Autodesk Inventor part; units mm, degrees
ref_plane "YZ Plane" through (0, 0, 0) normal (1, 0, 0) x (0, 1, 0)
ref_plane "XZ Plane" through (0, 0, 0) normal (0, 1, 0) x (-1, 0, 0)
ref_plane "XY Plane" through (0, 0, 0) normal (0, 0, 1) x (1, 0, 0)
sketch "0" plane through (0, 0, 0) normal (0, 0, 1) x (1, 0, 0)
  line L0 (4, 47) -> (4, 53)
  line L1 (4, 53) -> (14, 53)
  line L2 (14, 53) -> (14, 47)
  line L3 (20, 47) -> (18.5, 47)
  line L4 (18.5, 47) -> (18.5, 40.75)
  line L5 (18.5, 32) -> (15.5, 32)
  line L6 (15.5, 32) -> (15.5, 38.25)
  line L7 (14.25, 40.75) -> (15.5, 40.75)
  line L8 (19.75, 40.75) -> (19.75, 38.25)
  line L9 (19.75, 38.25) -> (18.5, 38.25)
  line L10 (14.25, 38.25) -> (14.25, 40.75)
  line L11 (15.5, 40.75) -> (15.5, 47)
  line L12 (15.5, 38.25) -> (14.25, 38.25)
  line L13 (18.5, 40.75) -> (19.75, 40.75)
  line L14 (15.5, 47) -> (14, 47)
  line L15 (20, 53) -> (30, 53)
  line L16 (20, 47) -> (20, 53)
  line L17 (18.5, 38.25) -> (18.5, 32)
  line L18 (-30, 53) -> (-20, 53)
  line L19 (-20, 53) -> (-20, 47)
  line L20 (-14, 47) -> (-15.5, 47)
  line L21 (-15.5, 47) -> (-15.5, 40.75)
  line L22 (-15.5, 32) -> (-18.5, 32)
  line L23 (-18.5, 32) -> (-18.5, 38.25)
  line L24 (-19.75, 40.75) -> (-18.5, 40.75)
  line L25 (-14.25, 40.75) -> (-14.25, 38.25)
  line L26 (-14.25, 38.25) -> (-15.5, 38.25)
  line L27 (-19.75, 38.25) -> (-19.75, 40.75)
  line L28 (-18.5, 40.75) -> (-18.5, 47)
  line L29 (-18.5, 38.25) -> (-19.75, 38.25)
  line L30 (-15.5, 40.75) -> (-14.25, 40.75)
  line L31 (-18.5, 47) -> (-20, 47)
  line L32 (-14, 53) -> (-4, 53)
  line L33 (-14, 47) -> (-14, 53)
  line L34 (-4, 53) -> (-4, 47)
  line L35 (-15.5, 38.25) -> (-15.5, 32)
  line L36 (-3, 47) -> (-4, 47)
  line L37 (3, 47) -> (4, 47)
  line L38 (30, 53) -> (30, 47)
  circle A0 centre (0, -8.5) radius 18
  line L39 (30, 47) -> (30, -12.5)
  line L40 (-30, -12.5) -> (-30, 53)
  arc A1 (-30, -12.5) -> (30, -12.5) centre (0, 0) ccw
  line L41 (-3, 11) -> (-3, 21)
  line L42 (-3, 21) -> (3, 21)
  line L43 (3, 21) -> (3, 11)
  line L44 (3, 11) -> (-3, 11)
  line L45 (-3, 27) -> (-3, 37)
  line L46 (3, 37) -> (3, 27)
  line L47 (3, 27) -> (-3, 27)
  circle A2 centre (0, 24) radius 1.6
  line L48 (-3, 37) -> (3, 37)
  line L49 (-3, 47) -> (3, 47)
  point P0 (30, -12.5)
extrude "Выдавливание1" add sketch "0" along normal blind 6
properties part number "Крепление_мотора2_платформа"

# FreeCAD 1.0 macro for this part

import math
import FreeCAD as App
import Part
import Sketcher
Q = App.Units.Quantity

doc = App.newDocument("Part")
body = doc.addObject("PartDesign::Body", "Body")

# Sketch on XY plane
sketch1 = body.newObject("Sketcher::SketchObject", "Sketch")
sketch1.AttachmentSupport = (doc.getObject("XY_Plane"), [""])
sketch1.MapMode = "FlatFace"
sketch1.addGeometry([
    Part.LineSegment(App.Vector(4, 53, 0), App.Vector(4, 47, 0)),  # 0
    Part.LineSegment(App.Vector(4, 47, 0), App.Vector(-4, 47, 0)),  # 1
    Part.LineSegment(App.Vector(-4, 47, 0), App.Vector(-4, 53, 0)),  # 2
    Part.LineSegment(App.Vector(-4, 53, 0), App.Vector(-14, 53, 0)),  # 3
    Part.LineSegment(App.Vector(-14, 53, 0), App.Vector(-14, 47, 0)),  # 4
    Part.LineSegment(App.Vector(-14, 47, 0), App.Vector(-15.5, 47, 0)),  # 5
    Part.LineSegment(App.Vector(-15.5, 47, 0), App.Vector(-15.5, 40.8, 0)),  # 6
    Part.LineSegment(App.Vector(-15.5, 40.8, 0), App.Vector(-14.2, 40.8, 0)),  # 7
    Part.LineSegment(App.Vector(-14.2, 40.8, 0), App.Vector(-14.2, 38.2, 0)),  # 8
    Part.LineSegment(App.Vector(-14.2, 38.2, 0), App.Vector(-15.5, 38.2, 0)),  # 9
    Part.LineSegment(App.Vector(-15.5, 38.2, 0), App.Vector(-15.5, 32, 0)),  # 10
    Part.LineSegment(App.Vector(-15.5, 32, 0), App.Vector(-18.5, 32, 0)),  # 11
    Part.LineSegment(App.Vector(-18.5, 32, 0), App.Vector(-18.5, 38.2, 0)),  # 12
    Part.LineSegment(App.Vector(-18.5, 38.2, 0), App.Vector(-19.8, 38.2, 0)),  # 13
    Part.LineSegment(App.Vector(-19.8, 38.2, 0), App.Vector(-19.8, 40.8, 0)),  # 14
    Part.LineSegment(App.Vector(-19.8, 40.8, 0), App.Vector(-18.5, 40.8, 0)),  # 15
    Part.LineSegment(App.Vector(-18.5, 40.8, 0), App.Vector(-18.5, 47, 0)),  # 16
    Part.LineSegment(App.Vector(-18.5, 47, 0), App.Vector(-20, 47, 0)),  # 17
    Part.LineSegment(App.Vector(-20, 47, 0), App.Vector(-20, 53, 0)),  # 18
    Part.LineSegment(App.Vector(-20, 53, 0), App.Vector(-30, 53, 0)),  # 19
    Part.LineSegment(App.Vector(-30, 53, 0), App.Vector(-30, -12.5, 0)),  # 20
    Part.ArcOfCircle(Part.Circle(App.Vector(0, 0, 0), App.Vector(0, 0, 1), 32.5), math.radians(-157), math.radians(-23)),  # 21
    Part.LineSegment(App.Vector(30, -12.5, 0), App.Vector(30, 53, 0)),  # 22
    Part.LineSegment(App.Vector(30, 53, 0), App.Vector(20, 53, 0)),  # 23
    Part.LineSegment(App.Vector(20, 53, 0), App.Vector(20, 47, 0)),  # 24
    Part.LineSegment(App.Vector(20, 47, 0), App.Vector(18.5, 47, 0)),  # 25
    Part.LineSegment(App.Vector(18.5, 47, 0), App.Vector(18.5, 40.8, 0)),  # 26
    Part.LineSegment(App.Vector(18.5, 40.8, 0), App.Vector(19.8, 40.8, 0)),  # 27
    Part.LineSegment(App.Vector(19.8, 40.8, 0), App.Vector(19.8, 38.2, 0)),  # 28
    Part.LineSegment(App.Vector(19.8, 38.2, 0), App.Vector(18.5, 38.2, 0)),  # 29
    Part.LineSegment(App.Vector(18.5, 38.2, 0), App.Vector(18.5, 32, 0)),  # 30
    Part.LineSegment(App.Vector(18.5, 32, 0), App.Vector(15.5, 32, 0)),  # 31
    Part.LineSegment(App.Vector(15.5, 32, 0), App.Vector(15.5, 38.2, 0)),  # 32
    Part.LineSegment(App.Vector(15.5, 38.2, 0), App.Vector(14.2, 38.2, 0)),  # 33
    Part.LineSegment(App.Vector(14.2, 38.2, 0), App.Vector(14.2, 40.8, 0)),  # 34
    Part.LineSegment(App.Vector(14.2, 40.8, 0), App.Vector(15.5, 40.8, 0)),  # 35
    Part.LineSegment(App.Vector(15.5, 40.8, 0), App.Vector(15.5, 47, 0)),  # 36
    Part.LineSegment(App.Vector(15.5, 47, 0), App.Vector(14, 47, 0)),  # 37
    Part.LineSegment(App.Vector(14, 47, 0), App.Vector(14, 53, 0)),  # 38
    Part.LineSegment(App.Vector(14, 53, 0), App.Vector(4, 53, 0)),  # 39
    Part.Circle(App.Vector(0, -8.5, 0), App.Vector(0, 0, 1), 18),  # 40
    Part.LineSegment(App.Vector(3, 11, 0), App.Vector(-3, 11, 0)),  # 41
    Part.LineSegment(App.Vector(-3, 11, 0), App.Vector(-3, 21, 0)),  # 42
    Part.LineSegment(App.Vector(-3, 21, 0), App.Vector(3, 21, 0)),  # 43
    Part.LineSegment(App.Vector(3, 21, 0), App.Vector(3, 11, 0)),  # 44
    Part.Circle(App.Vector(0, 24, 0), App.Vector(0, 0, 1), 1.6),  # 45
    Part.LineSegment(App.Vector(3, 27, 0), App.Vector(-3, 27, 0)),  # 46
    Part.LineSegment(App.Vector(-3, 27, 0), App.Vector(-3, 37, 0)),  # 47
    Part.LineSegment(App.Vector(-3, 37, 0), App.Vector(3, 37, 0)),  # 48
    Part.LineSegment(App.Vector(3, 37, 0), App.Vector(3, 27, 0)),  # 49
], False)
sketch1.addConstraint([
    Sketcher.Constraint("Coincident", 0, 2, 1, 1),
    Sketcher.Constraint("Coincident", 1, 2, 2, 1),
    Sketcher.Constraint("Coincident", 2, 2, 3, 1),
    Sketcher.Constraint("Coincident", 3, 2, 4, 1),
    Sketcher.Constraint("Coincident", 4, 2, 5, 1),
    Sketcher.Constraint("Coincident", 5, 2, 6, 1),
    Sketcher.Constraint("Coincident", 6, 2, 7, 1),
    Sketcher.Constraint("Coincident", 7, 2, 8, 1),
    Sketcher.Constraint("Coincident", 8, 2, 9, 1),
    Sketcher.Constraint("Coincident", 9, 2, 10, 1),
    Sketcher.Constraint("Coincident", 10, 2, 11, 1),
    Sketcher.Constraint("Coincident", 11, 2, 12, 1),
    Sketcher.Constraint("Coincident", 12, 2, 13, 1),
    Sketcher.Constraint("Coincident", 13, 2, 14, 1),
    Sketcher.Constraint("Coincident", 14, 2, 15, 1),
    Sketcher.Constraint("Coincident", 15, 2, 16, 1),
    Sketcher.Constraint("Coincident", 16, 2, 17, 1),
    Sketcher.Constraint("Coincident", 17, 2, 18, 1),
    Sketcher.Constraint("Coincident", 18, 2, 19, 1),
    Sketcher.Constraint("Coincident", 19, 2, 20, 1),
    Sketcher.Constraint("Coincident", 20, 2, 21, 1),
    Sketcher.Constraint("Coincident", 21, 2, 22, 1),
    Sketcher.Constraint("Coincident", 22, 2, 23, 1),
    Sketcher.Constraint("Coincident", 23, 2, 24, 1),
    Sketcher.Constraint("Coincident", 24, 2, 25, 1),
    Sketcher.Constraint("Coincident", 25, 2, 26, 1),
    Sketcher.Constraint("Coincident", 26, 2, 27, 1),
    Sketcher.Constraint("Coincident", 27, 2, 28, 1),
    Sketcher.Constraint("Coincident", 28, 2, 29, 1),
    Sketcher.Constraint("Coincident", 29, 2, 30, 1),
    Sketcher.Constraint("Coincident", 30, 2, 31, 1),
    Sketcher.Constraint("Coincident", 31, 2, 32, 1),
    Sketcher.Constraint("Coincident", 32, 2, 33, 1),
    Sketcher.Constraint("Coincident", 33, 2, 34, 1),
    Sketcher.Constraint("Coincident", 34, 2, 35, 1),
    Sketcher.Constraint("Coincident", 35, 2, 36, 1),
    Sketcher.Constraint("Coincident", 36, 2, 37, 1),
    Sketcher.Constraint("Coincident", 37, 2, 38, 1),
    Sketcher.Constraint("Coincident", 38, 2, 39, 1),
    Sketcher.Constraint("Coincident", 39, 2, 0, 1),
    Sketcher.Constraint("Coincident", 41, 2, 42, 1),
    Sketcher.Constraint("Coincident", 42, 2, 43, 1),
    Sketcher.Constraint("Coincident", 43, 2, 44, 1),
    Sketcher.Constraint("Coincident", 44, 2, 41, 1),
    Sketcher.Constraint("Coincident", 46, 2, 47, 1),
    Sketcher.Constraint("Coincident", 47, 2, 48, 1),
    Sketcher.Constraint("Coincident", 48, 2, 49, 1),
    Sketcher.Constraint("Coincident", 49, 2, 46, 1),
    Sketcher.Constraint("Vertical", 0),
    Sketcher.Constraint("Horizontal", 1),
    Sketcher.Constraint("Vertical", 2),
    Sketcher.Constraint("Horizontal", 3),
    Sketcher.Constraint("Vertical", 4),
    Sketcher.Constraint("Horizontal", 5),
    Sketcher.Constraint("Vertical", 6),
    Sketcher.Constraint("Horizontal", 7),
    Sketcher.Constraint("Vertical", 8),
    Sketcher.Constraint("Horizontal", 9),
    Sketcher.Constraint("Vertical", 10),
    Sketcher.Constraint("Horizontal", 11),
    Sketcher.Constraint("Vertical", 12),
    Sketcher.Constraint("Horizontal", 13),
    Sketcher.Constraint("Vertical", 14),
    Sketcher.Constraint("Horizontal", 15),
    Sketcher.Constraint("Vertical", 16),
    Sketcher.Constraint("Horizontal", 17),
    Sketcher.Constraint("Vertical", 18),
    Sketcher.Constraint("Horizontal", 19),
    Sketcher.Constraint("Vertical", 20),
    Sketcher.Constraint("Vertical", 22),
    Sketcher.Constraint("Horizontal", 23),
    Sketcher.Constraint("Vertical", 24),
    Sketcher.Constraint("Horizontal", 25),
    Sketcher.Constraint("Vertical", 26),
    Sketcher.Constraint("Horizontal", 27),
    Sketcher.Constraint("Vertical", 28),
    Sketcher.Constraint("Horizontal", 29),
    Sketcher.Constraint("Vertical", 30),
    Sketcher.Constraint("Horizontal", 31),
    Sketcher.Constraint("Vertical", 32),
    Sketcher.Constraint("Horizontal", 33),
    Sketcher.Constraint("Vertical", 34),
    Sketcher.Constraint("Horizontal", 35),
    Sketcher.Constraint("Vertical", 36),
    Sketcher.Constraint("Horizontal", 37),
    Sketcher.Constraint("Vertical", 38),
    Sketcher.Constraint("Horizontal", 39),
    Sketcher.Constraint("Horizontal", 41),
    Sketcher.Constraint("Vertical", 42),
    Sketcher.Constraint("Horizontal", 43),
    Sketcher.Constraint("Vertical", 44),
    Sketcher.Constraint("Horizontal", 46),
    Sketcher.Constraint("Vertical", 47),
    Sketcher.Constraint("Horizontal", 48),
    Sketcher.Constraint("Vertical", 49),
    Sketcher.Constraint("Coincident", 21, 3, -1, 1),
    Sketcher.Constraint("Symmetric", 19, 2, 22, 2, -2),
    Sketcher.Constraint("Symmetric", 17, 2, 24, 2, -2),
    Sketcher.Constraint("Symmetric", 15, 2, 26, 2, -2),
    Sketcher.Constraint("Symmetric", 13, 2, 28, 2, -2),
    Sketcher.Constraint("Symmetric", 11, 2, 30, 2, -2),
    Sketcher.Constraint("Symmetric", 9, 2, 32, 2, -2),
    Sketcher.Constraint("Symmetric", 7, 2, 34, 2, -2),
    Sketcher.Constraint("Symmetric", 5, 2, 36, 2, -2),
    Sketcher.Constraint("Symmetric", 3, 2, 38, 2, -2),
    Sketcher.Constraint("PointOnObject", 40, 3, -2),
    Sketcher.Constraint("PointOnObject", 45, 3, -2),
    Sketcher.Constraint("Horizontal", 1, 2, 4, 2),
    Sketcher.Constraint("Horizontal", 9, 2, 12, 2),
    Sketcher.Constraint("Horizontal", 7, 2, 14, 2),
    Sketcher.Constraint("Horizontal", 5, 2, 16, 2),
    Sketcher.Constraint("Horizontal", 3, 2, 18, 2),
    Sketcher.Constraint("Vertical", 6, 2, 9, 2),
    Sketcher.Constraint("Vertical", 12, 2, 15, 2),
    Sketcher.Constraint("Vertical", 42, 2, 46, 2),
    Sketcher.Constraint("Vertical", 44, 2, 48, 2),
    Sketcher.Constraint("Equal", 9, 13),
    Sketcher.Constraint("Equal", 5, 17),
    Sketcher.Constraint("Equal", 3, 19),
    Sketcher.Constraint("Equal", 23, 39),
    Sketcher.Constraint("Equal", 48, 0),
    Sketcher.Constraint("Equal", 6, 10),
    Sketcher.Constraint("Equal", 39, 42),
    Sketcher.Constraint("Equal", 44, 47),
    Sketcher.Constraint("Diameter", 40, Q("36 mm")),
    Sketcher.Constraint("Diameter", 45, Q("3.2 mm")),
    Sketcher.Constraint("Radius", 21, Q("32.5 mm")),
    Sketcher.Constraint("DistanceX", 1, 2, 1, 1, Q("8 mm")),
    Sketcher.Constraint("DistanceX", 3, 2, 3, 1, Q("10 mm")),
    Sketcher.Constraint("DistanceX", 11, 2, 11, 1, Q("3 mm")),
    Sketcher.Constraint("DistanceX", 41, 2, 41, 1, Q("6 mm")),
    Sketcher.Constraint("DistanceX", 5, 2, 5, 1, Q("1.5 mm")),
    Sketcher.Constraint("DistanceY", 8, 2, 8, 1, Q("2.5 mm")),
    Sketcher.Constraint("DistanceY", 20, 2, 20, 1, Q("65.5 mm")),
    Sketcher.Constraint("DistanceY", -1, 1, 45, 3, Q("24 mm")),
    Sketcher.Constraint("DistanceY", -1, 1, 10, 2, Q("32 mm")),
    Sketcher.Constraint("DistanceX", 41, 2, -1, 1, Q("3 mm")),
    Sketcher.Constraint("DistanceY", -1, 1, 41, 2, Q("11 mm")),
    Sketcher.Constraint("DistanceY", -1, 1, 46, 2, Q("27 mm")),
    Sketcher.Constraint("DistanceY", 20, 2, 40, 3, Q("4 mm")),
    Sketcher.Constraint("DistanceX", 7, 1, 7, 2, Q("1.25 mm")),
])
pad1 = body.newObject("PartDesign::Pad", "Pad")
pad1.Profile = sketch1
pad1.Length = 6

doc.recompute()
